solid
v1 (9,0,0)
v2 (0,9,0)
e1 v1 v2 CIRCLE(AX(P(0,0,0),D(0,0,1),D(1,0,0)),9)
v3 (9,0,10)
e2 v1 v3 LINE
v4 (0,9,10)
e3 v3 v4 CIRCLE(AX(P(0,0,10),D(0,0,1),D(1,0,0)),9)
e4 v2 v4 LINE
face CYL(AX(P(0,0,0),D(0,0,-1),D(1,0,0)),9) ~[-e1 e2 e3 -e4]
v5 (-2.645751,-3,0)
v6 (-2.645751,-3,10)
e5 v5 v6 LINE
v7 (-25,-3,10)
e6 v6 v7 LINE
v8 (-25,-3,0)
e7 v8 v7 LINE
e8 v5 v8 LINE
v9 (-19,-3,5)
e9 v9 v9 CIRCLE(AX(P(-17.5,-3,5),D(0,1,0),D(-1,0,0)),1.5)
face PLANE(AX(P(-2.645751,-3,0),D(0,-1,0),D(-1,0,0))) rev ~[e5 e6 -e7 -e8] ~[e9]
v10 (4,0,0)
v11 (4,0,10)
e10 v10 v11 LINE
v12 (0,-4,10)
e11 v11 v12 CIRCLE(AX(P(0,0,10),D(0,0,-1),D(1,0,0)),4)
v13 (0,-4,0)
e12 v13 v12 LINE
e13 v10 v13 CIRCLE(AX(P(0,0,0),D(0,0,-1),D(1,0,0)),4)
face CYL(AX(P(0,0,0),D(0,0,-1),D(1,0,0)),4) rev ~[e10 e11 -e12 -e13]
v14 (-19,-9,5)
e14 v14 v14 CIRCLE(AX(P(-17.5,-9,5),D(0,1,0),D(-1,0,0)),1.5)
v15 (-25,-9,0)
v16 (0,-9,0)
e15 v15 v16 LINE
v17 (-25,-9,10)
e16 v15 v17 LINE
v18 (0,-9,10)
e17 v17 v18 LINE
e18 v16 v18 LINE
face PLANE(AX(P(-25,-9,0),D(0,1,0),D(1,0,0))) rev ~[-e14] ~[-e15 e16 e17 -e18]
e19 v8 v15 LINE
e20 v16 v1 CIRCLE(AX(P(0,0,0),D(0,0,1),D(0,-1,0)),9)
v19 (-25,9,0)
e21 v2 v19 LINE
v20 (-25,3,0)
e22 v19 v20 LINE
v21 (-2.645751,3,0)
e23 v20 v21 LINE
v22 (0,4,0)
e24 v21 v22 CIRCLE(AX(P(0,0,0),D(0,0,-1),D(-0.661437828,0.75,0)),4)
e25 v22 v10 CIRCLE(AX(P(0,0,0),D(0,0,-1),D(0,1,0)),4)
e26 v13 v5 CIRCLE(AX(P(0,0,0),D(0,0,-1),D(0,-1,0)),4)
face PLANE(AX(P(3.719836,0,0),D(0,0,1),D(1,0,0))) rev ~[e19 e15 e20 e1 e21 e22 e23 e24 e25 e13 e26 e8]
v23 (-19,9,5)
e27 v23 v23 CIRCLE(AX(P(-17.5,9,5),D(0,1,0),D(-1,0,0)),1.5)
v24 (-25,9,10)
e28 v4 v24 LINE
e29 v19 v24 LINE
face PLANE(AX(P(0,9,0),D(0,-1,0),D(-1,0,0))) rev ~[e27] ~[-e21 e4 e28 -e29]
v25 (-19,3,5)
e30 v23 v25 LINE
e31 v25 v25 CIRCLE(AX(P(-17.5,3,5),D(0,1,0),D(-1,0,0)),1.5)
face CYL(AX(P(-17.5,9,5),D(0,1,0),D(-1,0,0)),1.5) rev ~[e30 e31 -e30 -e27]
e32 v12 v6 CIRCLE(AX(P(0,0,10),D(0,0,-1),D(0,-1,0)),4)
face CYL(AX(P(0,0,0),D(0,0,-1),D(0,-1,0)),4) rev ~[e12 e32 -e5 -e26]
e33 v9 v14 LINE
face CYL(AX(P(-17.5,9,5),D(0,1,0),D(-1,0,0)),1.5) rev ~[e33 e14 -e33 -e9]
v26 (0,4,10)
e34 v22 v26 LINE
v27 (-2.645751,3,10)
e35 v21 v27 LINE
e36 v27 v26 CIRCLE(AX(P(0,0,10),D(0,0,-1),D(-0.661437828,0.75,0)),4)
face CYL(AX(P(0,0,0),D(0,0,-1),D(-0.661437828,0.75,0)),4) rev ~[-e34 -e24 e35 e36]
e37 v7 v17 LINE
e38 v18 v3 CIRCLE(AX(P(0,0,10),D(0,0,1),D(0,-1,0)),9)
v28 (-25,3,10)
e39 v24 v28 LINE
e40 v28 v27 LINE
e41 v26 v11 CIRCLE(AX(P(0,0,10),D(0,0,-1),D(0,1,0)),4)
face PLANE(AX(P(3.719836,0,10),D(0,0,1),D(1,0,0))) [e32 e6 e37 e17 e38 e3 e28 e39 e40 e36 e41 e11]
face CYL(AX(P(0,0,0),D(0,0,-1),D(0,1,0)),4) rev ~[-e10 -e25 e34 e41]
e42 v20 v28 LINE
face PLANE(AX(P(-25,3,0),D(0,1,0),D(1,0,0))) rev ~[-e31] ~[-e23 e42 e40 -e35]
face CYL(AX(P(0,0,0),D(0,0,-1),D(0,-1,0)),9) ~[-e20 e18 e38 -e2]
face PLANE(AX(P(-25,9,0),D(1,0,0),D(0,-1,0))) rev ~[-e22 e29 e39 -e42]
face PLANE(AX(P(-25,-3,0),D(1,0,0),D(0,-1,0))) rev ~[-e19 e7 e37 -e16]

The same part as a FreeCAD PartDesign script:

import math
import FreeCAD as App
import Part
import Sketcher

doc = App.newDocument("Part")
body = doc.addObject("PartDesign::Body", "Body")

sketch1 = body.newObject("Sketcher::SketchObject", "Sketch")
sketch1.AttachmentSupport = (doc.getObject("XY_Plane"), [""])
sketch1.MapMode = "FlatFace"
sketch1.addGeometry([
    Part.ArcOfCircle(Part.Circle(App.Vector(0, 0, 0), App.Vector(0, 0, 1), 4), math.radians(0), math.radians(90)),
    Part.ArcOfCircle(Part.Circle(App.Vector(0, 0, 0), App.Vector(0, 0, 1), 4), math.radians(-90), math.radians(0)),
    Part.ArcOfCircle(Part.Circle(App.Vector(0, 0, 0), App.Vector(0, 0, 1), 4), math.radians(-131), math.radians(-90)),
    Part.LineSegment(App.Vector(-2.6, -3, 0), App.Vector(-25, -3, 0)),
    Part.LineSegment(App.Vector(-25, -3, 0), App.Vector(-25, -9, 0)),
    Part.LineSegment(App.Vector(-25, -9, 0), App.Vector(0, -9, 0)),
    Part.ArcOfCircle(Part.Circle(App.Vector(0, 0, 0), App.Vector(0, 0, 1), 9), math.radians(-90), math.radians(0)),
    Part.ArcOfCircle(Part.Circle(App.Vector(0, 0, 0), App.Vector(0, 0, 1), 9), math.radians(0), math.radians(90)),
    Part.LineSegment(App.Vector(0, 9, 0), App.Vector(-25, 9, 0)),
    Part.LineSegment(App.Vector(-25, 9, 0), App.Vector(-25, 3, 0)),
    Part.LineSegment(App.Vector(-25, 3, 0), App.Vector(-2.6, 3, 0)),
    Part.ArcOfCircle(Part.Circle(App.Vector(0, 0, 0), App.Vector(0, 0, 1), 4), math.radians(90), math.radians(131)),
], False)
sketch1.addConstraint([
    Sketcher.Constraint("Tangent", 0, 1, 1, 2),
    Sketcher.Constraint("Tangent", 1, 1, 2, 2),
    Sketcher.Constraint("Coincident", 2, 1, 3, 1),
    Sketcher.Constraint("Coincident", 3, 2, 4, 1),
    Sketcher.Constraint("Coincident", 4, 2, 5, 1),
    Sketcher.Constraint("Tangent", 5, 2, 6, 1),
    Sketcher.Constraint("Tangent", 6, 2, 7, 1),
    Sketcher.Constraint("Tangent", 7, 2, 8, 1),
    Sketcher.Constraint("Coincident", 8, 2, 9, 1),
    Sketcher.Constraint("Coincident", 9, 2, 10, 1),
    Sketcher.Constraint("Coincident", 10, 2, 11, 2),
    Sketcher.Constraint("Tangent", 11, 1, 0, 2),
    Sketcher.Constraint("Horizontal", 3),
    Sketcher.Constraint("Vertical", 4),
    Sketcher.Constraint("Horizontal", 5),
    Sketcher.Constraint("Horizontal", 8),
    Sketcher.Constraint("Vertical", 9),
    Sketcher.Constraint("Horizontal", 10),
    Sketcher.Constraint("Coincident", 0, 3, -1, 1),
    Sketcher.Constraint("Coincident", 2, 3, -1, 1),
    Sketcher.Constraint("Coincident", 6, 3, -1, 1),
    Sketcher.Constraint("Equal", 6, 7),
    Sketcher.Constraint("Equal", 2, 11),
    Sketcher.Constraint("Symmetric", 3, 2, 9, 2, -1),
    Sketcher.Constraint("PointOnObject", 0, 1, -1),
    Sketcher.Constraint("PointOnObject", 1, 1, -2),
    Sketcher.Constraint("PointOnObject", 6, 2, -1),
    Sketcher.Constraint("PointOnObject", 11, 1, -2),
    Sketcher.Constraint("Radius", 0, 4.0),
    Sketcher.Constraint("Radius", 6, 9.0),
    Sketcher.Constraint("DistanceX", 5, 1, 5, 2, 25.0),
    Sketcher.Constraint("DistanceY", 4, 2, 4, 1, 6.0),
])
pad1 = body.newObject("PartDesign::Pad", "Pad")
pad1.Profile = sketch1
pad1.Length = 10

sketch2 = body.newObject("Sketcher::SketchObject", "Sketch001")
sketch2.AttachmentSupport = (doc.getObject("XZ_Plane"), [""])
sketch2.MapMode = "FlatFace"
sketch2.AttachmentOffset = App.Placement(App.Vector(0, 0, -9), App.Rotation())
sketch2.addGeometry(Part.Circle(App.Vector(-17.5, 5, 0), App.Vector(0, 0, 1), 1.5), False)
sketch2.addConstraint([
    Sketcher.Constraint("Diameter", 0, 3.0),
    Sketcher.Constraint("DistanceY", -1, 1, 0, 3, 5.0),
    Sketcher.Constraint("DistanceX", 0, 3, -1, 1, 17.5),
])
pocket1 = body.newObject("PartDesign::Pocket", "Pocket")
pocket1.Profile = sketch2
pocket1.Type = "ThroughAll"
pocket1.Reversed = True

doc.recompute()
